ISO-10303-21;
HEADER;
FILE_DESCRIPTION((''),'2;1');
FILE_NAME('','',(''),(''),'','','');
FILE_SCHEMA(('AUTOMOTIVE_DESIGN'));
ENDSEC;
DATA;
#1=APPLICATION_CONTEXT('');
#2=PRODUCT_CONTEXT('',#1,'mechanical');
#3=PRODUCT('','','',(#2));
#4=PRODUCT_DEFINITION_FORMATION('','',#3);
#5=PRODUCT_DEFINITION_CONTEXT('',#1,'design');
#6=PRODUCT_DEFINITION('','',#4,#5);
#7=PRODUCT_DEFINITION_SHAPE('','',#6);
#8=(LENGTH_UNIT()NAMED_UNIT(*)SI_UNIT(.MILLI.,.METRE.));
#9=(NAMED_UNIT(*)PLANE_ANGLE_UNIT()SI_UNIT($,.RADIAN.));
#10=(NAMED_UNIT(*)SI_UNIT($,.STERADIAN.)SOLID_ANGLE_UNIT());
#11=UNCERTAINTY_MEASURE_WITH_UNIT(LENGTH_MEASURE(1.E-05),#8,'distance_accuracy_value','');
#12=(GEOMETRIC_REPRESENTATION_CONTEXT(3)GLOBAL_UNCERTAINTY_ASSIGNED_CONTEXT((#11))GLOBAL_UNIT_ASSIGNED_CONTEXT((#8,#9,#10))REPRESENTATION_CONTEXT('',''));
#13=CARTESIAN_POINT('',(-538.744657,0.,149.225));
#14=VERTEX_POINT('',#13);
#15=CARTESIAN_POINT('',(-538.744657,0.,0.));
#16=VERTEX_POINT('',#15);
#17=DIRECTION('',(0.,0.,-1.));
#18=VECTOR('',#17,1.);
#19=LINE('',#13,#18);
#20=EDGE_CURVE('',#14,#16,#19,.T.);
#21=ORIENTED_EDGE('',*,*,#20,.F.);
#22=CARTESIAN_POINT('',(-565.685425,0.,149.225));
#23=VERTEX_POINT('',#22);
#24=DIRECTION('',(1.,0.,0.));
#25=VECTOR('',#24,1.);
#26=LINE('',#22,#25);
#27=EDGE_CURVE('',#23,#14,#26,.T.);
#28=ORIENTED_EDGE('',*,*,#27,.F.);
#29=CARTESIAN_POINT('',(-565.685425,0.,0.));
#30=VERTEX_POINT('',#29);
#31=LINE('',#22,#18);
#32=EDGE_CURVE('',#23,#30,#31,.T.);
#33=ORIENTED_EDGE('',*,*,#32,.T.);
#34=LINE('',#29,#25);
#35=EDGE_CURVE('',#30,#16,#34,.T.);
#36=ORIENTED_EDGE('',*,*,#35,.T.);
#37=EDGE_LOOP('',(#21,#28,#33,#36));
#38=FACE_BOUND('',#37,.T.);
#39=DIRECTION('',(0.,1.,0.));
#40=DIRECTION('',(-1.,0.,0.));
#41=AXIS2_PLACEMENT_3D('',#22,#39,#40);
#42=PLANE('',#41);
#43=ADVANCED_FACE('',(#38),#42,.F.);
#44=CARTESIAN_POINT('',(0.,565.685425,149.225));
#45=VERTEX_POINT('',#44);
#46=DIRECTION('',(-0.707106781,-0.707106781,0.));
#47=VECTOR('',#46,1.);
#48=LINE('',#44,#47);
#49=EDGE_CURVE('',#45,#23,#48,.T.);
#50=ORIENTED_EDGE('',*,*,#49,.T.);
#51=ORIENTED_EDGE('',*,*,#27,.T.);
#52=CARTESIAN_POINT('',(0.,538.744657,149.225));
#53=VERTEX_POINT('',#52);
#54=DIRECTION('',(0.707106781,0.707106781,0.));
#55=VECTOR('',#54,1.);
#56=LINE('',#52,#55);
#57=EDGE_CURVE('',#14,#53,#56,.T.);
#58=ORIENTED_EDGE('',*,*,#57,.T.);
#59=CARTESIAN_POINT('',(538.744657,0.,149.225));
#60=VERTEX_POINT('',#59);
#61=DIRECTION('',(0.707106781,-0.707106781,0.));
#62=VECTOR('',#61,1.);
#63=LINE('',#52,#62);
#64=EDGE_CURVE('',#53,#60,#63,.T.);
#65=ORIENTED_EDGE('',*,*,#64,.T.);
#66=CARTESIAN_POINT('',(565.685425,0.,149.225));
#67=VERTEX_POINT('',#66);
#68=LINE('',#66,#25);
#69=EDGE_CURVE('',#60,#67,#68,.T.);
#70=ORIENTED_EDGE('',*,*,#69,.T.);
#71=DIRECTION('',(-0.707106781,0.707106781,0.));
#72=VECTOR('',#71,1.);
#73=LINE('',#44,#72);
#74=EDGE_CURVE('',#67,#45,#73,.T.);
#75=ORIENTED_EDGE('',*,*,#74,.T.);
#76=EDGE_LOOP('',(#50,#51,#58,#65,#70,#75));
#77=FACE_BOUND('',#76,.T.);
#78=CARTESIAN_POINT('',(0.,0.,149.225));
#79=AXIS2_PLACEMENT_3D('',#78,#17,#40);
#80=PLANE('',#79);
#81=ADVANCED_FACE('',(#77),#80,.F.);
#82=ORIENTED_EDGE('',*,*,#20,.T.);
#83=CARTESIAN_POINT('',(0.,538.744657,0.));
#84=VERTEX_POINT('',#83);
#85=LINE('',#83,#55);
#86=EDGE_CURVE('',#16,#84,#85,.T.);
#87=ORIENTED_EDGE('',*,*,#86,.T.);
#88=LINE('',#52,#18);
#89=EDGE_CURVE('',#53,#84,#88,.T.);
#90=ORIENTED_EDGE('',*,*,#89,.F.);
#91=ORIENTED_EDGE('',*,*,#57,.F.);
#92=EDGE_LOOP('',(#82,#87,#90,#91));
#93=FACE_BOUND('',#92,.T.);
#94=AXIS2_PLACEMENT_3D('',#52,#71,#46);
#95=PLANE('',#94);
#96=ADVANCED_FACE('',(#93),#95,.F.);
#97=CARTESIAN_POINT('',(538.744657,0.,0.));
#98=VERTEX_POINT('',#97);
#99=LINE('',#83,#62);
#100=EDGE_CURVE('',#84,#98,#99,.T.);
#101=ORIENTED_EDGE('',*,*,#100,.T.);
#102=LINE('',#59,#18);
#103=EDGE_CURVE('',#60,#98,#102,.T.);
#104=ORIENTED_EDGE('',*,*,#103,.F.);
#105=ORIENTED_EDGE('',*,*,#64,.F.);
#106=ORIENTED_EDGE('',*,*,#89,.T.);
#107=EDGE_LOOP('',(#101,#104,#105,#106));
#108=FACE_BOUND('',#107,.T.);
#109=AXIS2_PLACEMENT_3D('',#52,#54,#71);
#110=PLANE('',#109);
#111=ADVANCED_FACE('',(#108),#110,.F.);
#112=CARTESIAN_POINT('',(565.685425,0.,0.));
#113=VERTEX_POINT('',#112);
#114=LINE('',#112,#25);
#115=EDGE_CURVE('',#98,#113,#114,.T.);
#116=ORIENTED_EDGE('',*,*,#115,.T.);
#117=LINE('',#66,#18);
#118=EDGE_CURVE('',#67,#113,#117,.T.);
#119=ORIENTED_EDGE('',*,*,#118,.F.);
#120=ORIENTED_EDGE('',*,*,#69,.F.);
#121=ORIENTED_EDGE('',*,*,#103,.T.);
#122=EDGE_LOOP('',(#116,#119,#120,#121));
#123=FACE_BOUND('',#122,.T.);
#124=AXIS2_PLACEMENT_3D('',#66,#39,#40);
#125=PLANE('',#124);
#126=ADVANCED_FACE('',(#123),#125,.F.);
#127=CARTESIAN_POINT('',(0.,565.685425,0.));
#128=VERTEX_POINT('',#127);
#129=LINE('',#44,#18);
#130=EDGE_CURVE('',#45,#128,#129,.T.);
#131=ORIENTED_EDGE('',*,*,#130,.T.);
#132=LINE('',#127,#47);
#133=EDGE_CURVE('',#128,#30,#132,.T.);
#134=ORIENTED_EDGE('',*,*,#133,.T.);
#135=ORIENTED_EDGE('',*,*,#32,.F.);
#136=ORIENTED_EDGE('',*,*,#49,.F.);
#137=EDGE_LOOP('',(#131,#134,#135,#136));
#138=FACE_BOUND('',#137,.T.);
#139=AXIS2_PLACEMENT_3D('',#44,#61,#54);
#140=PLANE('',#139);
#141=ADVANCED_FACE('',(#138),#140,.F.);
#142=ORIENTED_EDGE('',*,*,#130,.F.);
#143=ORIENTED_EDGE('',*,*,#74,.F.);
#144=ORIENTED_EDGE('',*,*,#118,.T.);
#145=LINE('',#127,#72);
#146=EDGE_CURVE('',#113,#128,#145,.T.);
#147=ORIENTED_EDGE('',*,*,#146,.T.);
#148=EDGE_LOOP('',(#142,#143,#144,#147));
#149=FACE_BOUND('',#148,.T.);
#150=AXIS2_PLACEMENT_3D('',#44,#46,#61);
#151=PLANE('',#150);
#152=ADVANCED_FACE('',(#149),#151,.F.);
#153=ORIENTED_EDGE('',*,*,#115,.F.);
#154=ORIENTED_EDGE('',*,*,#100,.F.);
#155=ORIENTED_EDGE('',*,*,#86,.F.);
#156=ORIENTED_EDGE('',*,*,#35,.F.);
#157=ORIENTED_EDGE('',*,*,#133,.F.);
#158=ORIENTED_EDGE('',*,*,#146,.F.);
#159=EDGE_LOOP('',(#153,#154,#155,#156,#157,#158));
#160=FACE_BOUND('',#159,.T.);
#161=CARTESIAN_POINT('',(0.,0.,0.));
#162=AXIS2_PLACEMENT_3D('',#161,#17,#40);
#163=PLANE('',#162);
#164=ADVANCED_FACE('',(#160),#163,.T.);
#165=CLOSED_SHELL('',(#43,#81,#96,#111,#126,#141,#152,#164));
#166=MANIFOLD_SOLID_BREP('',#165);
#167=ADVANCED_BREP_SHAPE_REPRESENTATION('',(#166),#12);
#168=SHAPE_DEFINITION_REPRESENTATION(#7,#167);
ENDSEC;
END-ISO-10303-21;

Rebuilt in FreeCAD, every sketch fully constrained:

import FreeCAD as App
import Part
import Sketcher
from FreeCAD import Vector

doc = App.newDocument("Part")
body = doc.addObject("PartDesign::Body", "Body")

sketch1 = body.newObject("Sketcher::SketchObject", "Sketch")
sketch1.AttachmentSupport = (doc.getObject("XY_Plane"), [""])
sketch1.MapMode = "FlatFace"
sketch1.addGeometry(Part.LineSegment(Vector(0, 565.685425, 0), Vector(-565.685425, 0, 0)), False)
sketch1.addGeometry(Part.LineSegment(Vector(-565.685425, 0, 0), Vector(-538.744657, 0, 0)), False)
sketch1.addGeometry(Part.LineSegment(Vector(-538.744657, 0, 0), Vector(0, 538.744657, 0)), False)
sketch1.addGeometry(Part.LineSegment(Vector(0, 538.744657, 0), Vector(538.744657, 0, 0)), False)
sketch1.addGeometry(Part.LineSegment(Vector(538.744657, 0, 0), Vector(565.685425, 0, 0)), False)
sketch1.addGeometry(Part.LineSegment(Vector(565.685425, 0, 0), Vector(0, 565.685425, 0)), False)
sketch1.addConstraint(Sketcher.Constraint("Coincident", 0, 2, 1, 1))
sketch1.addConstraint(Sketcher.Constraint("Coincident", 1, 2, 2, 1))
sketch1.addConstraint(Sketcher.Constraint("Coincident", 2, 2, 3, 1))
sketch1.addConstraint(Sketcher.Constraint("Coincident", 3, 2, 4, 1))
sketch1.addConstraint(Sketcher.Constraint("Coincident", 4, 2, 5, 1))
sketch1.addConstraint(Sketcher.Constraint("Coincident", 5, 2, 0, 1))
sketch1.addConstraint(Sketcher.Constraint("Horizontal", 1))
sketch1.addConstraint(Sketcher.Constraint("Horizontal", 4))
sketch1.addConstraint(Sketcher.Constraint("Symmetric", 1, 2, 3, 2, -1, 1))
sketch1.addConstraint(Sketcher.Constraint("Symmetric", 0, 2, 4, 2, -2))
sketch1.addConstraint(Sketcher.Constraint("PointOnObject", 2, 2, -2))
sketch1.addConstraint(Sketcher.Constraint("PointOnObject", 5, 2, -2))
sketch1.addConstraint(Sketcher.Constraint("Parallel", 0, 2))
sketch1.addConstraint(Sketcher.Constraint("Perpendicular", 2, 3))
sketch1.addConstraint(Sketcher.Constraint("Distance", 0, 800.0))
sketch1.addConstraint(Sketcher.Constraint("Distance", 2, 761.9))
pad1 = body.newObject("PartDesign::Pad", "Pad")
pad1.Profile = sketch1
pad1.Length = 149.225

doc.recompute()
